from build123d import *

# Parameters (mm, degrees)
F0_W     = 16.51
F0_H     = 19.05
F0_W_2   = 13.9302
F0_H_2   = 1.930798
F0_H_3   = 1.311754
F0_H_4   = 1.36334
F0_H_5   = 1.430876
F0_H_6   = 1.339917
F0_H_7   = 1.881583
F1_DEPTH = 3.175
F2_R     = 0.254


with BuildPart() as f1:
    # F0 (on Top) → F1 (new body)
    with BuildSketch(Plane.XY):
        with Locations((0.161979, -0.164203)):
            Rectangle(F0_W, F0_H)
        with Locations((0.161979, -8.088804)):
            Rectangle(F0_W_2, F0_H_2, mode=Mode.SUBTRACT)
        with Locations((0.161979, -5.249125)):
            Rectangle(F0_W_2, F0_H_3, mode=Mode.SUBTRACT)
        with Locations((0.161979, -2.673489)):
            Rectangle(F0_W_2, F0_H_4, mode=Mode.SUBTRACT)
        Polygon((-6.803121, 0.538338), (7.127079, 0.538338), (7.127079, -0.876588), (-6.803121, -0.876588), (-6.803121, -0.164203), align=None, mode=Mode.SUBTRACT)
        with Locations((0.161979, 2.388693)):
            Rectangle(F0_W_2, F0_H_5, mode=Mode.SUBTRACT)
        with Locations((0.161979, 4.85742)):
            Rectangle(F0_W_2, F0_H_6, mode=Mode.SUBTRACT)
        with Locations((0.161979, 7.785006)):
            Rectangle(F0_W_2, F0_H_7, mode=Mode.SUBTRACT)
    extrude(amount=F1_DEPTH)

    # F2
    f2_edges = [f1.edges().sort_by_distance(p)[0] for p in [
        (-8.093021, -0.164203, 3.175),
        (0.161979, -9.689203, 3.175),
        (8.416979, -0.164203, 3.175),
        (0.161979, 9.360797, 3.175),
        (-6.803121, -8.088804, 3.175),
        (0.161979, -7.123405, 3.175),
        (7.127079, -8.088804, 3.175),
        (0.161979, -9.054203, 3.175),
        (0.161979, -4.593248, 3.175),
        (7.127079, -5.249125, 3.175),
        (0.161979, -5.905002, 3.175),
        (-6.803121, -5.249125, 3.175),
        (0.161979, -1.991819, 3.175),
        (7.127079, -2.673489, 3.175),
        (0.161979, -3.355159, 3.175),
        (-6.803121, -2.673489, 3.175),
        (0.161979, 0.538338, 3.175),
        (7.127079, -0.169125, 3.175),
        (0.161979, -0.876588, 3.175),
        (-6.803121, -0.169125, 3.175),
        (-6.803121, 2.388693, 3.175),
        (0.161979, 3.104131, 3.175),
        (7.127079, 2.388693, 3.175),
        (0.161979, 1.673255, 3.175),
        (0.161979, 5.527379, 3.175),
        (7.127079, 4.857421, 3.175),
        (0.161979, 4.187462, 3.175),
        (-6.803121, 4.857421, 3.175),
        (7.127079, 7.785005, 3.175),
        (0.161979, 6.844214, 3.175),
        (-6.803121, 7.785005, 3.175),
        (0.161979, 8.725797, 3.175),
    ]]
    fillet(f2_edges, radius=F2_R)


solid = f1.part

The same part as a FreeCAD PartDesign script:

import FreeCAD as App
import Part
import Sketcher

V = App.Vector
Q = App.Units.Quantity


def edges_at(feature, points):
    """Names of the edges that pass closest to the given points."""
    edges = feature.Shape.Edges
    near = lambda p: min(range(len(edges)), key=lambda i: edges[i].distToShape(Part.Vertex(*p))[0])
    return sorted({f"Edge{near(p) + 1}" for p in points})

doc = App.newDocument("Part")
params = doc.addObject("Spreadsheet::Sheet", "Params")
for row, (alias, value) in enumerate([
    ("sketch1_width", "0.65 in"),
    ("sketch1_height", "0.75 in"),
    ("pad1_length", "0.125 in"),
    ("fillet_radius", "0.01 in"),
], start=1):
    params.set(f"A{row}", alias)
    params.set(f"B{row}", "=" + value)
    params.setAlias(f"B{row}", alias)

body = doc.addObject("PartDesign::Body", "Body")

sketch1 = body.newObject("Sketcher::SketchObject", "Sketch")
sketch1.AttachmentSupport = (doc.getObject("XY_Plane"), [""])
sketch1.MapMode = "FlatFace"
sketch1.addGeometry([
    Part.LineSegment(V(-8.1, 9.4, 0), V(-8.1, -9.7, 0)),
    Part.LineSegment(V(-8.1, -9.7, 0), V(8.4, -9.7, 0)),
    Part.LineSegment(V(8.4, -9.7, 0), V(8.4, 9.4, 0)),
    Part.LineSegment(V(8.4, 9.4, 0), V(-8.1, 9.4, 0)),
    Part.LineSegment(V(7.1, -9.1, 0), V(-6.8, -9.1, 0)),
    Part.LineSegment(V(-6.8, -9.1, 0), V(-6.8, -7.1, 0)),
    Part.LineSegment(V(-6.8, -7.1, 0), V(7.1, -7.1, 0)),
    Part.LineSegment(V(7.1, -7.1, 0), V(7.1, -9.1, 0)),
    Part.LineSegment(V(7.1, -5.9, 0), V(-6.8, -5.9, 0)),
    Part.LineSegment(V(-6.8, -5.9, 0), V(-6.8, -4.6, 0)),
    Part.LineSegment(V(-6.8, -4.6, 0), V(7.1, -4.6, 0)),
    Part.LineSegment(V(7.1, -4.6, 0), V(7.1, -5.9, 0)),
    Part.LineSegment(V(7.1, -3.4, 0), V(-6.8, -3.4, 0)),
    Part.LineSegment(V(-6.8, -3.4, 0), V(-6.8, -2, 0)),
    Part.LineSegment(V(-6.8, -2, 0), V(7.1, -2, 0)),
    Part.LineSegment(V(7.1, -2, 0), V(7.1, -3.4, 0)),
    Part.LineSegment(V(-6.8, -0.9, 0), V(-6.8, 0.5, 0)),
    Part.LineSegment(V(-6.8, 0.5, 0), V(7.1, 0.5, 0)),
    Part.LineSegment(V(7.1, 0.5, 0), V(7.1, -0.9, 0)),
    Part.LineSegment(V(7.1, -0.9, 0), V(-6.8, -0.9, 0)),
    Part.LineSegment(V(7.1, 1.7, 0), V(-6.8, 1.7, 0)),
    Part.LineSegment(V(-6.8, 1.7, 0), V(-6.8, 3.1, 0)),
    Part.LineSegment(V(-6.8, 3.1, 0), V(7.1, 3.1, 0)),
    Part.LineSegment(V(7.1, 3.1, 0), V(7.1, 1.7, 0)),
    Part.LineSegment(V(7.1, 4.2, 0), V(-6.8, 4.2, 0)),
    Part.LineSegment(V(-6.8, 4.2, 0), V(-6.8, 5.5, 0)),
    Part.LineSegment(V(-6.8, 5.5, 0), V(7.1, 5.5, 0)),
    Part.LineSegment(V(7.1, 5.5, 0), V(7.1, 4.2, 0)),
    Part.LineSegment(V(7.1, 6.8, 0), V(-6.8, 6.8, 0)),
    Part.LineSegment(V(-6.8, 6.8, 0), V(-6.8, 8.7, 0)),
    Part.LineSegment(V(-6.8, 8.7, 0), V(7.1, 8.7, 0)),
    Part.LineSegment(V(7.1, 8.7, 0), V(7.1, 6.8, 0)),
], False)
sketch1.addConstraint([
    Sketcher.Constraint("Coincident", 0, 2, 1, 1),
    Sketcher.Constraint("Coincident", 1, 2, 2, 1),
    Sketcher.Constraint("Coincident", 2, 2, 3, 1),
    Sketcher.Constraint("Coincident", 3, 2, 0, 1),
    Sketcher.Constraint("Coincident", 4, 2, 5, 1),
    Sketcher.Constraint("Coincident", 5, 2, 6, 1),
    Sketcher.Constraint("Coincident", 6, 2, 7, 1),
    Sketcher.Constraint("Coincident", 7, 2, 4, 1),
    Sketcher.Constraint("Coincident", 8, 2, 9, 1),
    Sketcher.Constraint("Coincident", 9, 2, 10, 1),
    Sketcher.Constraint("Coincident", 10, 2, 11, 1),
    Sketcher.Constraint("Coincident", 11, 2, 8, 1),
    Sketcher.Constraint("Coincident", 12, 2, 13, 1),
    Sketcher.Constraint("Coincident", 13, 2, 14, 1),
    Sketcher.Constraint("Coincident", 14, 2, 15, 1),
    Sketcher.Constraint("Coincident", 15, 2, 12, 1),
    Sketcher.Constraint("Coincident", 16, 2, 17, 1),
    Sketcher.Constraint("Coincident", 17, 2, 18, 1),
    Sketcher.Constraint("Coincident", 18, 2, 19, 1),
    Sketcher.Constraint("Coincident", 19, 2, 16, 1),
    Sketcher.Constraint("Coincident", 20, 2, 21, 1),
    Sketcher.Constraint("Coincident", 21, 2, 22, 1),
    Sketcher.Constraint("Coincident", 22, 2, 23, 1),
    Sketcher.Constraint("Coincident", 23, 2, 20, 1),
    Sketcher.Constraint("Coincident", 24, 2, 25, 1),
    Sketcher.Constraint("Coincident", 25, 2, 26, 1),
    Sketcher.Constraint("Coincident", 26, 2, 27, 1),
    Sketcher.Constraint("Coincident", 27, 2, 24, 1),
    Sketcher.Constraint("Coincident", 28, 2, 29, 1),
    Sketcher.Constraint("Coincident", 29, 2, 30, 1),
    Sketcher.Constraint("Coincident", 30, 2, 31, 1),
    Sketcher.Constraint("Coincident", 31, 2, 28, 1),
    Sketcher.Constraint("Vertical", 0),
    Sketcher.Constraint("Horizontal", 1),
    Sketcher.Constraint("Vertical", 2),
    Sketcher.Constraint("Horizontal", 3),
    Sketcher.Constraint("Horizontal", 4),
    Sketcher.Constraint("Vertical", 5),
    Sketcher.Constraint("Horizontal", 6),
    Sketcher.Constraint("Vertical", 7),
    Sketcher.Constraint("Horizontal", 8),
    Sketcher.Constraint("Vertical", 9),
    Sketcher.Constraint("Horizontal", 10),
    Sketcher.Constraint("Vertical", 11),
    Sketcher.Constraint("Horizontal", 12),
    Sketcher.Constraint("Vertical", 13),
    Sketcher.Constraint("Horizontal", 14),
    Sketcher.Constraint("Vertical", 15),
    Sketcher.Constraint("Vertical", 16),
    Sketcher.Constraint("Horizontal", 17),
    Sketcher.Constraint("Vertical", 18),
    Sketcher.Constraint("Horizontal", 19),
    Sketcher.Constraint("Horizontal", 20),
    Sketcher.Constraint("Vertical", 21),
    Sketcher.Constraint("Horizontal", 22),
    Sketcher.Constraint("Vertical", 23),
    Sketcher.Constraint("Horizontal", 24),
    Sketcher.Constraint("Vertical", 25),
    Sketcher.Constraint("Horizontal", 26),
    Sketcher.Constraint("Vertical", 27),
    Sketcher.Constraint("Horizontal", 28),
    Sketcher.Constraint("Vertical", 29),
    Sketcher.Constraint("Horizontal", 30),
    Sketcher.Constraint("Vertical", 31),
    Sketcher.Constraint("Vertical", 5, 2, 8, 2),
    Sketcher.Constraint("Vertical", 7, 2, 10, 2),
    Sketcher.Constraint("Vertical", 9, 2, 12, 2),
    Sketcher.Constraint("Vertical", 11, 2, 14, 2),
    Sketcher.Constraint("Vertical", 13, 2, 16, 2),
    Sketcher.Constraint("Vertical", 15, 2, 17, 2),
    Sketcher.Constraint("Vertical", 19, 2, 20, 2),
    Sketcher.Constraint("Vertical", 18, 2, 22, 2),
    Sketcher.Constraint("Vertical", 21, 2, 24, 2),
    Sketcher.Constraint("Vertical", 23, 2, 26, 2),
    Sketcher.Constraint("Vertical", 25, 2, 28, 2),
    Sketcher.Constraint("Vertical", 27, 2, 30, 2),
    Sketcher.Constraint("DistanceX", 1, 1, 1, 2, Q("0.65 in")),
    Sketcher.Constraint("DistanceY", 0, 2, 0, 1, Q("0.75 in")),
    Sketcher.Constraint("DistanceY", 0, 2, 4, 2, Q("0.025 in")),
    Sketcher.Constraint("DistanceY", 29, 2, 3, 2, Q("0.025 in")),
    Sketcher.Constraint("DistanceX", 4, 2, 4, 1, Q("13.9302 mm")),
    Sketcher.Constraint("DistanceY", 13, 1, 13, 2, Q("1.36334 mm")),
    Sketcher.Constraint("DistanceY", 8, 2, -1, 1, Q("5.905002 mm")),
    Sketcher.Constraint("DistanceX", 0, 2, 4, 2, Q("1.2899 mm")),
    Sketcher.Constraint("DistanceY", 5, 2, 3, 2, Q("16.484202 mm")),
    Sketcher.Constraint("DistanceY", 4, 2, 8, 2, Q("3.149201 mm")),
    Sketcher.Constraint("DistanceY", 9, 1, 9, 2, Q("1.311754 mm")),
    Sketcher.Constraint("DistanceY", 16, 1, 16, 2, Q("1.414926 mm")),
    Sketcher.Constraint("DistanceY", 21, 1, 21, 2, Q("1.430876 mm")),
    Sketcher.Constraint("DistanceY", 25, 1, 25, 2, Q("1.339917 mm")),
    Sketcher.Constraint("DistanceY", 29, 1, 29, 2, Q("1.881583 mm")),
    Sketcher.Constraint("DistanceX", 0, 2, -1, 1, Q("8.093021 mm")),
    Sketcher.Constraint("DistanceY", 12, 2, -1, 1, Q("3.355159 mm")),
    Sketcher.Constraint("DistanceY", 18, 2, -1, 1, Q("0.876588 mm")),
    Sketcher.Constraint("DistanceY", -1, 1, 21, 2, Q("3.104131 mm")),
    Sketcher.Constraint("DistanceY", -1, 1, 24, 2, Q("4.187462 mm")),
])
sketch1.setExpression("Constraints[76]", "Params.sketch1_width")
sketch1.setExpression("Constraints[77]", "Params.sketch1_height")
pad1 = body.newObject("PartDesign::Pad", "Pad")
pad1.Profile = sketch1
pad1.setExpression("Length", "Params.pad1_length")
doc.recompute()

fillet = body.newObject("PartDesign::Fillet", "Fillet")
fillet.Base = (pad1, edges_at(pad1, [
    (-8.093, -0.164, 3.175),
    (0.162, -9.689, 3.175),
    (8.417, -0.164, 3.175),
    (0.162, 9.361, 3.175),
    (-6.803, -8.089, 3.175),
    (0.162, -7.123, 3.175),
    (7.127, -8.089, 3.175),
    (0.162, -9.054, 3.175),
    (0.162, -4.593, 3.175),
    (7.127, -5.249, 3.175),
    (0.162, -5.905, 3.175),
    (-6.803, -5.249, 3.175),
    (0.162, -1.992, 3.175),
    (7.127, -2.673, 3.175),
    (0.162, -3.355, 3.175),
    (-6.803, -2.673, 3.175),
    (0.162, 0.538, 3.175),
    (7.127, -0.169, 3.175),
    (0.162, -0.877, 3.175),
    (-6.803, -0.169, 3.175),
    (-6.803, 2.389, 3.175),
    (0.162, 3.104, 3.175),
    (7.127, 2.389, 3.175),
    (0.162, 1.673, 3.175),
    (0.162, 5.527, 3.175),
    (7.127, 4.857, 3.175),
    (0.162, 4.187, 3.175),
    (-6.803, 4.857, 3.175),
    (7.127, 7.785, 3.175),
    (0.162, 6.844, 3.175),
    (-6.803, 7.785, 3.175),
    (0.162, 8.726, 3.175),
]))
fillet.setExpression("Radius", "Params.fillet_radius")

doc.recompute()
